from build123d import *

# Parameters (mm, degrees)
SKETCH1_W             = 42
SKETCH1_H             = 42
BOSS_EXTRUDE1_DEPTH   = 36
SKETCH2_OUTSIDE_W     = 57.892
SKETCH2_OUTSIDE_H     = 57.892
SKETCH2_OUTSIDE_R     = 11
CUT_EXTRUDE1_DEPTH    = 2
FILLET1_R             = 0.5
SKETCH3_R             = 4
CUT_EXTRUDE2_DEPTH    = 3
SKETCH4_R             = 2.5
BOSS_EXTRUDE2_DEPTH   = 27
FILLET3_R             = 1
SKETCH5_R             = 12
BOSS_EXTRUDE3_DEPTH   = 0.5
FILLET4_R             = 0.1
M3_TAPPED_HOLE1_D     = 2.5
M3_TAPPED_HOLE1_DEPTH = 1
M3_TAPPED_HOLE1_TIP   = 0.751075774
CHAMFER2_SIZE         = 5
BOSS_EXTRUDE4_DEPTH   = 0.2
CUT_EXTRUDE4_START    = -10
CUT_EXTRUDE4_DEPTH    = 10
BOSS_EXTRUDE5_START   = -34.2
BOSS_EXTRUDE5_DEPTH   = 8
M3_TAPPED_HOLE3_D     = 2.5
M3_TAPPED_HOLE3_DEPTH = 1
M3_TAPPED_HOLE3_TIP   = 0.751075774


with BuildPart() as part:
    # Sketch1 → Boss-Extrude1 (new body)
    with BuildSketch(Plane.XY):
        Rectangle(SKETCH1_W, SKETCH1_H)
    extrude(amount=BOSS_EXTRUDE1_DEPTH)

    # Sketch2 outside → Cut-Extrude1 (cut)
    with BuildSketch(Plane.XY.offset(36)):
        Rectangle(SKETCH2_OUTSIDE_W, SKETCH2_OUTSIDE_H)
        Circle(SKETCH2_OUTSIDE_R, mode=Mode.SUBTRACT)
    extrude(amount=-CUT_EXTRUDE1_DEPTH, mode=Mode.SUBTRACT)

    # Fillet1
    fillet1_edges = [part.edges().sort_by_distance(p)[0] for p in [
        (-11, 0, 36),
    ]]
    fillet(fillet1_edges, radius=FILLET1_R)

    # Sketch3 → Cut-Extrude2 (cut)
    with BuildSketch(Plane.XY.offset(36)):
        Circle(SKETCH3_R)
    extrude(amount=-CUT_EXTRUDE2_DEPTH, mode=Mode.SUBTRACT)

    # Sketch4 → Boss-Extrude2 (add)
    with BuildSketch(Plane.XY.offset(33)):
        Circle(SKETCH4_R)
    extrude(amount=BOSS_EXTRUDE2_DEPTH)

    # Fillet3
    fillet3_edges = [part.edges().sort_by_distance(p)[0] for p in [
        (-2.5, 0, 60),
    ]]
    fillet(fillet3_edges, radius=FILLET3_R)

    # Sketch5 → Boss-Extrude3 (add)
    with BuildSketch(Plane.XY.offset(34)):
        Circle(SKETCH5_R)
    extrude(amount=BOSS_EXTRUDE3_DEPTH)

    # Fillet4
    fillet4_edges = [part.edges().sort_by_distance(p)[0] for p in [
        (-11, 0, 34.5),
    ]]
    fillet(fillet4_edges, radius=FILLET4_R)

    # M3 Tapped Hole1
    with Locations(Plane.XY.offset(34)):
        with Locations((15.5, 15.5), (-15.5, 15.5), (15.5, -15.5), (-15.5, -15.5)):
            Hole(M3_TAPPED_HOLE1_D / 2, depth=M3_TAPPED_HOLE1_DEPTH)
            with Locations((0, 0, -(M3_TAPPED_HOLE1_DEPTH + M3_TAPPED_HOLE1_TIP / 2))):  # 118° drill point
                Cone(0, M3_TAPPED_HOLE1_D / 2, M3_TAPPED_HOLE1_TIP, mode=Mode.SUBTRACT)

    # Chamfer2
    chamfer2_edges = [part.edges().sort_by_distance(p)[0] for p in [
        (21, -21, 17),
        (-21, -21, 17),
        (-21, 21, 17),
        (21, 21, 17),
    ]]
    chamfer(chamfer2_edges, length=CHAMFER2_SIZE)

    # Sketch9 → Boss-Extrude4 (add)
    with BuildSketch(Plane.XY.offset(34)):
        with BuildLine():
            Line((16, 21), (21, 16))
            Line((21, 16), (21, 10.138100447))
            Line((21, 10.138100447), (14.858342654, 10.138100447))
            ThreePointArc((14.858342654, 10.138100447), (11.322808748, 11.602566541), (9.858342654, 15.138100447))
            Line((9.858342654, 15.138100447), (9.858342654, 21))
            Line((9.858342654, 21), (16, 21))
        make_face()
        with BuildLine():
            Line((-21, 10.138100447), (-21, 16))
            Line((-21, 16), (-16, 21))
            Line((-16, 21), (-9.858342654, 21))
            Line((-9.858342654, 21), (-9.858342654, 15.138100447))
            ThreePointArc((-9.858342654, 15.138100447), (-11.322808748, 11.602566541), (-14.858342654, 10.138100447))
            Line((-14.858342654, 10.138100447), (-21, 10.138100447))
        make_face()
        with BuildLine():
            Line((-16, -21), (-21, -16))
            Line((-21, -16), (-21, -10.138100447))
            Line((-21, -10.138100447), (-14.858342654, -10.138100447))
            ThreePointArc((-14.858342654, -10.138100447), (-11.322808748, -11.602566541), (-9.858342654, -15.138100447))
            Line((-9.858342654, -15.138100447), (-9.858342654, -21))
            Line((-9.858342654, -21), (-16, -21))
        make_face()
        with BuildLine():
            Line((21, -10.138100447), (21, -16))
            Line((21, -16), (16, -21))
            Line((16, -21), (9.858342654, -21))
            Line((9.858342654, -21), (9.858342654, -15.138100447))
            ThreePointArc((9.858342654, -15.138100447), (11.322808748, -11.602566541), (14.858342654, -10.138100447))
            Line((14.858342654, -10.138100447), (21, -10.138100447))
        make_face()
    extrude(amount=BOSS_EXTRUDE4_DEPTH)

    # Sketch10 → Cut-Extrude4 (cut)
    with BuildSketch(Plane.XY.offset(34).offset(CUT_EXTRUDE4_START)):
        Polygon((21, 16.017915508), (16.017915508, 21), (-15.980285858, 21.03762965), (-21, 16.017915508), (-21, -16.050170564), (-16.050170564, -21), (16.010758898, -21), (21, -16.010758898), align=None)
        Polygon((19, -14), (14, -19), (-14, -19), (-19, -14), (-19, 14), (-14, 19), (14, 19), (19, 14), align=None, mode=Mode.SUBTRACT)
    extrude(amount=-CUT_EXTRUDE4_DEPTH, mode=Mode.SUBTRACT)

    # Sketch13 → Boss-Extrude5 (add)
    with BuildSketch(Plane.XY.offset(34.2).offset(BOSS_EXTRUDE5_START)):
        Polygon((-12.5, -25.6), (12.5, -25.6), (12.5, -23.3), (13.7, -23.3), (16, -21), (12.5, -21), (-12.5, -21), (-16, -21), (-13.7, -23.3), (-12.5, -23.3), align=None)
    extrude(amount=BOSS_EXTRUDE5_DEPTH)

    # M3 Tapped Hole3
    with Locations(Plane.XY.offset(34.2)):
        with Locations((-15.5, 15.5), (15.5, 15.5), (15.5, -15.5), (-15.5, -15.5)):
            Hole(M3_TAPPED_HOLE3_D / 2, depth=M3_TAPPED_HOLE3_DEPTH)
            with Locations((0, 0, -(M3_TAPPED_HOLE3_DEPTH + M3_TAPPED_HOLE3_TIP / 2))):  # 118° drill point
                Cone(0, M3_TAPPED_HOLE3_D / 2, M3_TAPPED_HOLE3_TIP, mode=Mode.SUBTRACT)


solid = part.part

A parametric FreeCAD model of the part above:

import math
import FreeCAD as App
import Part
import Sketcher

V = App.Vector


def edges_at(feature, points):
    """Names of the edges that pass closest to the given points."""
    edges = feature.Shape.Edges
    near = lambda p: min(range(len(edges)), key=lambda i: edges[i].distToShape(Part.Vertex(*p))[0])
    return sorted({f"Edge{near(p) + 1}" for p in points})


def add_polygon(sketch, points):
    """Adds a closed chain of lines whose ends are joined by coincident constraints."""
    first, n = sketch.GeometryCount, len(points)
    for a, b in zip(points, points[1:] + points[:1]):
        sketch.addGeometry(Part.LineSegment(App.Vector(*a, 0), App.Vector(*b, 0)), False)
    for i in range(n):
        sketch.addConstraint(Sketcher.Constraint("Coincident", first + i, 2, first + (i + 1) % n, 1))

doc = App.newDocument("Part")
body = doc.addObject("PartDesign::Body", "Body")

# Sketch on XY plane
sketch1 = body.newObject("Sketcher::SketchObject", "Sketch")
sketch1.AttachmentSupport = (doc.getObject("XY_Plane"), [""])
sketch1.MapMode = "FlatFace"
add_polygon(sketch1, [(-21, 21), (-21, -21), (21, -21), (21, 21)])  # lines 0-3
sketch1.addConstraint([
    Sketcher.Constraint("Vertical", 0),
    Sketcher.Constraint("Horizontal", 1),
    Sketcher.Constraint("Vertical", 2),
    Sketcher.Constraint("Horizontal", 3),
    Sketcher.Constraint("Symmetric", 0, 2, 2, 2, -1, 1),
    Sketcher.Constraint("Equal", 3, 0),
    Sketcher.Constraint("DistanceX", 1, 1, 1, 2, 42.0),
])
pad1 = body.newObject("PartDesign::Pad", "Pad")
pad1.Profile = sketch1
pad1.Length = 36

# Sketch on XY plane
sketch2 = body.newObject("Sketcher::SketchObject", "Sketch001")
sketch2.AttachmentSupport = (doc.getObject("XY_Plane"), [""])
sketch2.MapMode = "FlatFace"
sketch2.AttachmentOffset = App.Placement(V(0, 0, 36), App.Rotation())
add_polygon(sketch2, [(-29, 29), (-29, -29), (29, -29), (29, 29)])  # lines 0-3
sketch2.addGeometry(Part.Circle(V(0, 0, 0), V(0, 0, 1), 11), False)  # 4
sketch2.addConstraint([
    Sketcher.Constraint("Vertical", 0),
    Sketcher.Constraint("Horizontal", 1),
    Sketcher.Constraint("Vertical", 2),
    Sketcher.Constraint("Horizontal", 3),
    Sketcher.Constraint("Coincident", 4, 3, -1, 1),
    Sketcher.Constraint("Symmetric", 0, 2, 2, 2, -1, 1),
    Sketcher.Constraint("Equal", 3, 0),
    Sketcher.Constraint("Diameter", 4, 22.0),
    Sketcher.Constraint("DistanceX", 1, 1, 1, 2, 57.892),
])
pocket1 = body.newObject("PartDesign::Pocket", "Pocket")
pocket1.Profile = sketch2
pocket1.Length = 2
doc.recompute()

fillet = body.newObject("PartDesign::Fillet", "Fillet")
fillet.Base = (pocket1, edges_at(pocket1, [(-11, 0, 36)]))
fillet.Radius = 0.5

# Sketch on XY plane
sketch3 = body.newObject("Sketcher::SketchObject", "Sketch002")
sketch3.AttachmentSupport = (doc.getObject("XY_Plane"), [""])
sketch3.MapMode = "FlatFace"
sketch3.AttachmentOffset = App.Placement(V(0, 0, 36), App.Rotation())
sketch3.addGeometry(Part.Circle(V(0, 0, 0), V(0, 0, 1), 4), False)
sketch3.addConstraint([
    Sketcher.Constraint("Coincident", 0, 3, -1, 1),
    Sketcher.Constraint("Diameter", 0, 8.0),
])
pocket2 = body.newObject("PartDesign::Pocket", "Pocket001")
pocket2.Profile = sketch3
pocket2.Length = 3

# Sketch on XY plane
sketch4 = body.newObject("Sketcher::SketchObject", "Sketch003")
sketch4.AttachmentSupport = (doc.getObject("XY_Plane"), [""])
sketch4.MapMode = "FlatFace"
sketch4.AttachmentOffset = App.Placement(V(0, 0, 33), App.Rotation())
sketch4.addGeometry(Part.Circle(V(0, 0, 0), V(0, 0, 1), 2.5), False)
sketch4.addConstraint([
    Sketcher.Constraint("Coincident", 0, 3, -1, 1),
    Sketcher.Constraint("Diameter", 0, 5.0),
])
pad2 = body.newObject("PartDesign::Pad", "Pad001")
pad2.Profile = sketch4
pad2.Length = 27
doc.recompute()

fillet2 = body.newObject("PartDesign::Fillet", "Fillet001")
fillet2.Base = (pad2, edges_at(pad2, [(-2.5, 0, 60)]))
fillet2.Radius = 1

# Sketch on XY plane
sketch5 = body.newObject("Sketcher::SketchObject", "Sketch004")
sketch5.AttachmentSupport = (doc.getObject("XY_Plane"), [""])
sketch5.MapMode = "FlatFace"
sketch5.AttachmentOffset = App.Placement(V(0, 0, 34), App.Rotation())
sketch5.addGeometry(Part.Circle(V(0, 0, 0), V(0, 0, 1), 12), False)
sketch5.addConstraint([
    Sketcher.Constraint("Coincident", 0, 3, -1, 1),
    Sketcher.Constraint("Diameter", 0, 24.0),
])
pad3 = body.newObject("PartDesign::Pad", "Pad002")
pad3.Profile = sketch5
pad3.Length = 0.5
doc.recompute()

fillet3 = body.newObject("PartDesign::Fillet", "Fillet002")
fillet3.Base = (pad3, edges_at(pad3, [(-11, 0, 34.5)]))
fillet3.Radius = 0.1

# Sketch on XY plane
sketch6 = body.newObject("Sketcher::SketchObject", "Sketch005")
sketch6.AttachmentSupport = (doc.getObject("XY_Plane"), [""])
sketch6.MapMode = "FlatFace"
sketch6.AttachmentOffset = App.Placement(V(0, 0, 34), App.Rotation())
sketch6.addGeometry([
    Part.Circle(V(15.5, 15.5, 0), V(0, 0, 1), 1.2),
    Part.Circle(V(-15.5, 15.5, 0), V(0, 0, 1), 1.2),
    Part.Circle(V(15.5, -15.5, 0), V(0, 0, 1), 1.2),
    Part.Circle(V(-15.5, -15.5, 0), V(0, 0, 1), 1.2),
], False)
sketch6.addConstraint([
    Sketcher.Constraint("Equal", 0, 1),
    Sketcher.Constraint("Equal", 1, 2),
    Sketcher.Constraint("Equal", 2, 3),
    Sketcher.Constraint("Symmetric", 1, 3, 2, 3, -1, 1),
    Sketcher.Constraint("Symmetric", 0, 3, 3, 3, -1, 1),
    Sketcher.Constraint("Symmetric", 0, 3, 1, 3, -2),
    Sketcher.Constraint("Diameter", 0, 2.5),
    Sketcher.Constraint("DistanceX", 1, 3, 0, 3, 31.0),
    Sketcher.Constraint("DistanceY", 2, 3, 0, 3, 31.0),
])
doc.recompute()
hole = body.newObject("PartDesign::Hole", "Hole")
hole.Profile = sketch6
hole.ThreadType = "None"
hole.Diameter = 2.5
hole.DepthType = "Dimension"
hole.Depth = 1
hole.DrillPoint = "Angled"
hole.DrillPointAngle = 118
doc.recompute()

chamfer = body.newObject("PartDesign::Chamfer", "Chamfer")
chamfer.Base = (hole, edges_at(hole, [
    (21, -21, 17),
    (-21, -21, 17),
    (-21, 21, 17),
    (21, 21, 17),
]))
chamfer.Size = 5

# Sketch on XY plane
sketch7 = body.newObject("Sketcher::SketchObject", "Sketch006")
sketch7.AttachmentSupport = (doc.getObject("XY_Plane"), [""])
sketch7.MapMode = "FlatFace"
sketch7.AttachmentOffset = App.Placement(V(0, 0, 34), App.Rotation())
sketch7.addGeometry([
    Part.LineSegment(V(21, 16, 0), V(16, 21, 0)),  # 0
    Part.LineSegment(V(16, 21, 0), V(10, 21, 0)),  # 1
    Part.LineSegment(V(10, 21, 0), V(10, 15, 0)),  # 2
    Part.ArcOfCircle(Part.Circle(V(15, 15, 0), V(0, 0, 1), 5), math.radians(180), math.radians(270)),  # 3
    Part.LineSegment(V(15, 10, 0), V(21, 10, 0)),  # 4
    Part.LineSegment(V(21, 10, 0), V(21, 16, 0)),  # 5
    Part.LineSegment(V(-21, 16, 0), V(-21, 10, 0)),  # 6
    Part.LineSegment(V(-21, 10, 0), V(-15, 10, 0)),  # 7
    Part.ArcOfCircle(Part.Circle(V(-15, 15, 0), V(0, 0, 1), 5), math.radians(-90), math.radians(0)),  # 8
    Part.LineSegment(V(-10, 15, 0), V(-10, 21, 0)),  # 9
    Part.LineSegment(V(-10, 21, 0), V(-16, 21, 0)),  # 10
    Part.LineSegment(V(-16, 21, 0), V(-21, 16, 0)),  # 11
    Part.LineSegment(V(-21, -16, 0), V(-16, -21, 0)),  # 12
    Part.LineSegment(V(-16, -21, 0), V(-10, -21, 0)),  # 13
    Part.LineSegment(V(-10, -21, 0), V(-10, -15, 0)),  # 14
    Part.ArcOfCircle(Part.Circle(V(-15, -15, 0), V(0, 0, 1), 5), math.radians(0), math.radians(90)),  # 15
    Part.LineSegment(V(-15, -10, 0), V(-21, -10, 0)),  # 16
    Part.LineSegment(V(-21, -10, 0), V(-21, -16, 0)),  # 17
    Part.LineSegment(V(21, -16, 0), V(21, -10, 0)),  # 18
    Part.LineSegment(V(21, -10, 0), V(15, -10, 0)),  # 19
    Part.ArcOfCircle(Part.Circle(V(15, -15, 0), V(0, 0, 1), 5), math.radians(90), math.radians(180)),  # 20
    Part.LineSegment(V(10, -15, 0), V(10, -21, 0)),  # 21
    Part.LineSegment(V(10, -21, 0), V(16, -21, 0)),  # 22
    Part.LineSegment(V(16, -21, 0), V(21, -16, 0)),  # 23
], False)
sketch7.addConstraint([
    Sketcher.Constraint("Coincident", 0, 2, 1, 1),
    Sketcher.Constraint("Coincident", 1, 2, 2, 1),
    Sketcher.Constraint("Tangent", 2, 2, 3, 1),
    Sketcher.Constraint("Tangent", 3, 2, 4, 1),
    Sketcher.Constraint("Coincident", 4, 2, 5, 1),
    Sketcher.Constraint("Coincident", 5, 2, 0, 1),
    Sketcher.Constraint("Coincident", 6, 2, 7, 1),
    Sketcher.Constraint("Tangent", 7, 2, 8, 1),
    Sketcher.Constraint("Tangent", 8, 2, 9, 1),
    Sketcher.Constraint("Coincident", 9, 2, 10, 1),
    Sketcher.Constraint("Coincident", 10, 2, 11, 1),
    Sketcher.Constraint("Coincident", 11, 2, 6, 1),
    Sketcher.Constraint("Coincident", 12, 2, 13, 1),
    Sketcher.Constraint("Coincident", 13, 2, 14, 1),
    Sketcher.Constraint("Tangent", 14, 2, 15, 1),
    Sketcher.Constraint("Tangent", 15, 2, 16, 1),
    Sketcher.Constraint("Coincident", 16, 2, 17, 1),
    Sketcher.Constraint("Coincident", 17, 2, 12, 1),
    Sketcher.Constraint("Coincident", 18, 2, 19, 1),
    Sketcher.Constraint("Tangent", 19, 2, 20, 1),
    Sketcher.Constraint("Tangent", 20, 2, 21, 1),
    Sketcher.Constraint("Coincident", 21, 2, 22, 1),
    Sketcher.Constraint("Coincident", 22, 2, 23, 1),
    Sketcher.Constraint("Coincident", 23, 2, 18, 1),
    Sketcher.Constraint("Horizontal", 1),
    Sketcher.Constraint("Vertical", 2),
    Sketcher.Constraint("Horizontal", 4),
    Sketcher.Constraint("Vertical", 5),
    Sketcher.Constraint("Vertical", 6),
    Sketcher.Constraint("Horizontal", 7),
    Sketcher.Constraint("Vertical", 9),
    Sketcher.Constraint("Horizontal", 10),
    Sketcher.Constraint("Horizontal", 13),
    Sketcher.Constraint("Vertical", 14),
    Sketcher.Constraint("Horizontal", 16),
    Sketcher.Constraint("Vertical", 17),
    Sketcher.Constraint("Vertical", 18),
    Sketcher.Constraint("Horizontal", 19),
    Sketcher.Constraint("Vertical", 21),
    Sketcher.Constraint("Horizontal", 22),
    Sketcher.Constraint("Equal", 3, 8),
    Sketcher.Constraint("Equal", 8, 15),
    Sketcher.Constraint("Equal", 15, 20),
    Sketcher.Constraint("Symmetric", 3, 3, 15, 3, -1, 1),
    Sketcher.Constraint("Symmetric", 8, 3, 20, 3, -1, 1),
    Sketcher.Constraint("Symmetric", 0, 2, 12, 2, -1, 1),
    Sketcher.Constraint("Symmetric", 5, 2, 17, 2, -1, 1),
    Sketcher.Constraint("Symmetric", 10, 2, 22, 2, -1, 1),
    Sketcher.Constraint("Symmetric", 11, 2, 23, 2, -1, 1),
    Sketcher.Constraint("Symmetric", 3, 3, 8, 3, -2),
    Sketcher.Constraint("Symmetric", 0, 2, 10, 2, -2),
    Sketcher.Constraint("Symmetric", 5, 2, 11, 2, -2),
    Sketcher.Constraint("Perpendicular", 0, 11),
    Sketcher.Constraint("Equal", 1, 4),
    Sketcher.Constraint("Radius", 3, 5.0),
    Sketcher.Constraint("DistanceX", -1, 1, 0, 2, 16.0),
    Sketcher.Constraint("DistanceY", -1, 1, 0, 2, 21.0),
    Sketcher.Constraint("DistanceY", 2, 2, 2, 1, 5.8619),
    Sketcher.Constraint("DistanceX", 1, 2, 1, 1, 6.141657),
])
pad4 = body.newObject("PartDesign::Pad", "Pad003")
pad4.Profile = sketch7
pad4.Length = 0.2

# Sketch on XY plane
sketch8 = body.newObject("Sketcher::SketchObject", "Sketch007")
sketch8.AttachmentSupport = (doc.getObject("XY_Plane"), [""])
sketch8.MapMode = "FlatFace"
sketch8.AttachmentOffset = App.Placement(V(0, 0, 24), App.Rotation())
add_polygon(sketch8, [(21, 16), (16, 21), (-16, 21), (-21, 16), (-21, -16), (-16, -21), (16, -21), (21, -16)])  # lines 0-7
add_polygon(sketch8, [(19, 14), (19, -14), (14, -19), (-14, -19), (-19, -14), (-19, 14), (-14, 19), (14, 19)])  # lines 8-15
sketch8.addConstraint([
    Sketcher.Constraint("Vertical", 3),
    Sketcher.Constraint("Horizontal", 5),
    Sketcher.Constraint("Vertical", 7),
    Sketcher.Constraint("Vertical", 8),
    Sketcher.Constraint("Horizontal", 10),
    Sketcher.Constraint("Vertical", 12),
    Sketcher.Constraint("Horizontal", 14),
    Sketcher.Constraint("Symmetric", 8, 2, 12, 2, -1, 1),
    Sketcher.Constraint("Symmetric", 9, 2, 13, 2, -1, 1),
    Sketcher.Constraint("Symmetric", 2, 2, 7, 2, -2),
    Sketcher.Constraint("Perpendicular", 0, 2),
    Sketcher.Constraint("Perpendicular", 2, 4),
    Sketcher.Constraint("Perpendicular", 4, 6),
    Sketcher.Constraint("Parallel", 6, 9),
    Sketcher.Constraint("Perpendicular", 9, 11),
    Sketcher.Constraint("Perpendicular", 13, 15),
    Sketcher.Constraint("Horizontal", 8, 2, 11, 2),
    Sketcher.Constraint("Horizontal", 12, 2, 15, 2),
    Sketcher.Constraint("Vertical", 10, 2, 13, 2),
    Sketcher.Constraint("Equal", 14, 8),
    Sketcher.Constraint("DistanceX", 10, 2, 10, 1, 28.0),
    Sketcher.Constraint("DistanceY", -1, 1, 0, 2, 21.0),
    Sketcher.Constraint("DistanceX", 2, 2, -1, 1, 21.0),
    Sketcher.Constraint("DistanceY", 4, 2, -1, 1, 21.0),
    Sketcher.Constraint("DistanceX", -1, 1, 8, 2, 19.0),
    Sketcher.Constraint("DistanceX", 5, 1, 5, 2, 32.060929),
    Sketcher.Constraint("DistanceX", 1, 2, 0, 2, 31.998201),
    Sketcher.Constraint("DistanceY", 3, 2, 1, 2, 37.0878),
    Sketcher.Constraint("Distance", 0, 7.045731),
])
pocket3 = body.newObject("PartDesign::Pocket", "Pocket002")
pocket3.Profile = sketch8
pocket3.Length = 10

# Sketch on XY plane
sketch9 = body.newObject("Sketcher::SketchObject", "Sketch008")
sketch9.AttachmentSupport = (doc.getObject("XY_Plane"), [""])
sketch9.MapMode = "FlatFace"
add_polygon(sketch9, [(-12.5, -25.6), (12.5, -25.6), (12.5, -23.3), (13.7, -23.3), (16, -21), (-16, -21), (-13.7, -23.3), (-12.5, -23.3)])  # lines 0-7
sketch9.addConstraint([
    Sketcher.Constraint("Horizontal", 0),
    Sketcher.Constraint("Vertical", 1),
    Sketcher.Constraint("Horizontal", 2),
    Sketcher.Constraint("Horizontal", 4),
    Sketcher.Constraint("Horizontal", 6),
    Sketcher.Constraint("Vertical", 7),
    Sketcher.Constraint("Symmetric", 2, 2, 5, 2, -2),
    Sketcher.Constraint("Perpendicular", 3, 5),
    Sketcher.Constraint("Equal", 2, 6),
    Sketcher.Constraint("Equal", 3, 5),
    Sketcher.Constraint("DistanceX", 0, 1, 0, 2, 25.0),
    Sketcher.Constraint("DistanceX", 4, 2, 4, 1, 32.0),
    Sketcher.Constraint("DistanceX", 2, 1, 2, 2, 1.2),
    Sketcher.Constraint("DistanceY", 1, 1, 1, 2, 2.3),
    Sketcher.Constraint("DistanceY", 3, 2, -1, 1, 21.0),
])
pad5 = body.newObject("PartDesign::Pad", "Pad004")
pad5.Profile = sketch9
pad5.Length = 8

# Sketch on XY plane
sketch10 = body.newObject("Sketcher::SketchObject", "Sketch009")
sketch10.AttachmentSupport = (doc.getObject("XY_Plane"), [""])
sketch10.MapMode = "FlatFace"
sketch10.AttachmentOffset = App.Placement(V(0, 0, 34.2), App.Rotation())
sketch10.addGeometry([
    Part.Circle(V(-15.5, 15.5, 0), V(0, 0, 1), 1.2),
    Part.Circle(V(15.5, 15.5, 0), V(0, 0, 1), 1.2),
    Part.Circle(V(15.5, -15.5, 0), V(0, 0, 1), 1.2),
    Part.Circle(V(-15.5, -15.5, 0), V(0, 0, 1), 1.2),
], False)
sketch10.addConstraint([
    Sketcher.Constraint("Equal", 0, 1),
    Sketcher.Constraint("Equal", 1, 2),
    Sketcher.Constraint("Equal", 2, 3),
    Sketcher.Constraint("Symmetric", 0, 3, 2, 3, -1, 1),
    Sketcher.Constraint("Symmetric", 1, 3, 3, 3, -1, 1),
    Sketcher.Constraint("Symmetric", 0, 3, 1, 3, -2),
    Sketcher.Constraint("Diameter", 0, 2.5),
    Sketcher.Constraint("DistanceX", 0, 3, 1, 3, 31.0),
    Sketcher.Constraint("DistanceY", 2, 3, 1, 3, 31.0),
])
doc.recompute()
hole2 = body.newObject("PartDesign::Hole", "Hole001")
hole2.Profile = sketch10
hole2.ThreadType = "None"
hole2.Diameter = 2.5
hole2.DepthType = "Dimension"
hole2.Depth = 1
hole2.DrillPoint = "Angled"
hole2.DrillPointAngle = 118

doc.recompute()
